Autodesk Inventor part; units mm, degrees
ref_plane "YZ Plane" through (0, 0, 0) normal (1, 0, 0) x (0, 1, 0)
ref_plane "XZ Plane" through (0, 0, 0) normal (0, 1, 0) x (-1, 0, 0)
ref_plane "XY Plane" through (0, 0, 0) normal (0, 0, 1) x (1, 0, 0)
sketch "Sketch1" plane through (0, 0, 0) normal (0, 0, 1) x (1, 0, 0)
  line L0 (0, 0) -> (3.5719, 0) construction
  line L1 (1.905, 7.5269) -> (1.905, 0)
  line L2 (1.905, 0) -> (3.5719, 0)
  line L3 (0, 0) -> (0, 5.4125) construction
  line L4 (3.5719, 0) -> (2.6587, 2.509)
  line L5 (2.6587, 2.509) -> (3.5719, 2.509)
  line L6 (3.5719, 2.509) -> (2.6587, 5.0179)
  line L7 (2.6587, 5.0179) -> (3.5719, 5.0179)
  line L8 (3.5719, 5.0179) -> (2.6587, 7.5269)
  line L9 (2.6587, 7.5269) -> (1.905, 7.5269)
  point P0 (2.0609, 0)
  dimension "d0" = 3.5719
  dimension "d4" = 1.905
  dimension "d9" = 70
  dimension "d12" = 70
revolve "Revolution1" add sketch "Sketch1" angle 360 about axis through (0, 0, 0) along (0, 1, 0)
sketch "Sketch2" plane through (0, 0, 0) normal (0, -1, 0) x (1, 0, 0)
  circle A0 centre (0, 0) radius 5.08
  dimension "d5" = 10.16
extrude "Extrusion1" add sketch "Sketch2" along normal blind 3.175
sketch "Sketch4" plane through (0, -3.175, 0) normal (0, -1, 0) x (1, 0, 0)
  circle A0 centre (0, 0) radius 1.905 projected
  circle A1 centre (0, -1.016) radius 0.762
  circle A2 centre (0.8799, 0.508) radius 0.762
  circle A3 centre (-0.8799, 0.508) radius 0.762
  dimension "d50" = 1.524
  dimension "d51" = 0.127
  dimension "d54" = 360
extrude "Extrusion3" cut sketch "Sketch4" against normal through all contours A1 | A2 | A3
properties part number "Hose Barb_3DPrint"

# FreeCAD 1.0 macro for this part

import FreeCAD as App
import Part
import Sketcher

V = App.Vector
Q = App.Units.Quantity


def add_polygon(sketch, points):
    """Adds a closed chain of lines whose ends are joined by coincident constraints."""
    first, n = sketch.GeometryCount, len(points)
    for a, b in zip(points, points[1:] + points[:1]):
        sketch.addGeometry(Part.LineSegment(App.Vector(*a, 0), App.Vector(*b, 0)), False)
    for i in range(n):
        sketch.addConstraint(Sketcher.Constraint("Coincident", first + i, 2, first + (i + 1) % n, 1))

doc = App.newDocument("Part")
body = doc.addObject("PartDesign::Body", "Body")

# Sketch on XY plane
sketch1 = doc.addObject("Sketcher::SketchObject", "Sketch")
body.addObject(sketch1)
sketch1.AttachmentSupport = (doc.XY_Plane, [""])
sketch1.MapMode = "FlatFace"
add_polygon(sketch1, [(2.7, 7.5), (1.9, 7.5), (1.9, 0), (3.6, 0), (2.7, 2.5), (3.6, 2.5), (2.7, 5), (3.6, 5)])  # lines 0-7
sketch1.addConstraint([
    Sketcher.Constraint("Horizontal", 0),
    Sketcher.Constraint("Vertical", 1),
    Sketcher.Constraint("Horizontal", 2),
    Sketcher.Constraint("Horizontal", 4),
    Sketcher.Constraint("Horizontal", 6),
    Sketcher.Constraint("PointOnObject", 1, 2, -1),
    Sketcher.Constraint("Parallel", 3, 5),
    Sketcher.Constraint("Parallel", 5, 7),
    Sketcher.Constraint("Vertical", 2, 2, 4, 2),
    Sketcher.Constraint("Vertical", 3, 2, 5, 2),
    Sketcher.Constraint("Vertical", 4, 2, 6, 2),
    Sketcher.Constraint("Vertical", 5, 2, 7, 2),
    Sketcher.Constraint("DistanceX", -1, 1, 0, 2, Q("0.075 in")),
    Sketcher.Constraint("DistanceX", -1, 1, 2, 2, Q("0.1406299 in")),
    Sketcher.Constraint("Angle", 3, Q("110 deg")),
    Sketcher.Constraint("DistanceX", 0, 2, 0, 1, Q("0.7537 mm")),
])
revolution = doc.addObject("PartDesign::Revolution", "Revolution")
body.addObject(revolution)
revolution.Profile = sketch1
revolution.ReferenceAxis = (sketch1, ["V_Axis"])
revolution.Angle = 360

# Sketch on XZ plane
sketch2 = doc.addObject("Sketcher::SketchObject", "Sketch001")
body.addObject(sketch2)
sketch2.AttachmentSupport = (doc.XZ_Plane, [""])
sketch2.MapMode = "FlatFace"
sketch2.addGeometry(Part.Circle(V(0, 0, 0), V(0, 0, 1), 5), False)
sketch2.addConstraint([
    Sketcher.Constraint("Coincident", 0, 3, -1, 1),
    Sketcher.Constraint("Diameter", 0, Q("0.4 in")),
])
pad1 = doc.addObject("PartDesign::Pad", "Pad")
body.addObject(pad1)
pad1.Profile = sketch2
pad1.Length = Q("0.125 in")

# Sketch on XZ plane
sketch3 = doc.addObject("Sketcher::SketchObject", "Sketch002")
body.addObject(sketch3)
sketch3.AttachmentSupport = (doc.XZ_Plane, [""])
sketch3.MapMode = "FlatFace"
sketch3.AttachmentOffset = App.Placement(V(0, 0, 0.125 * 25.4), App.Rotation())
sketch3.addGeometry([
    Part.Circle(V(0, -1, 0), V(0, 0, 1), 0.8),
    Part.Circle(V(0.9, 0.5, 0), V(0, 0, 1), 0.8),
    Part.Circle(V(-0.9, 0.5, 0), V(0, 0, 1), 0.8),
], False)
sketch3.addConstraint([
    Sketcher.Constraint("Equal", 0, 1),
    Sketcher.Constraint("Equal", 1, 2),
    Sketcher.Constraint("Symmetric", 1, 3, 2, 3, -2),
    Sketcher.Constraint("PointOnObject", 0, 3, -2),
    Sketcher.Constraint("Diameter", 0, Q("0.06 in")),
    Sketcher.Constraint("DistanceY", 0, 3, 1, 3, Q("0.06 in")),
    Sketcher.Constraint("DistanceY", 0, 3, -1, 1, Q("0.04 in")),
    Sketcher.Constraint("DistanceX", -1, 1, 1, 3, Q("0.88 mm")),
])
pocket1 = doc.addObject("PartDesign::Pocket", "Pocket")
body.addObject(pocket1)
pocket1.Profile = sketch3
pocket1.Type = "ThroughAll"

doc.recompute()
